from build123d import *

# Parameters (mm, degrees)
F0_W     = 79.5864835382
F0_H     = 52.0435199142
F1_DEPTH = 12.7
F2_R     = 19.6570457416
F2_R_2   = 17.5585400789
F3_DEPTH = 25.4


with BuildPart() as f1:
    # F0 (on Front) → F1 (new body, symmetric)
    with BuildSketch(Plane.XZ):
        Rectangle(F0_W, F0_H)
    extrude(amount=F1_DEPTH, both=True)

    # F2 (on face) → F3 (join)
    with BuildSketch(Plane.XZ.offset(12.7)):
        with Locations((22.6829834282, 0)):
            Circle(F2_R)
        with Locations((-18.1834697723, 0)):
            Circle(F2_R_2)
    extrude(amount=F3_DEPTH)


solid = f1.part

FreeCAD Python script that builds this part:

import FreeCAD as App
import Part
import Sketcher
from FreeCAD import Vector
Q = App.Units.Quantity

doc = App.newDocument("Part")
body = doc.addObject("PartDesign::Body", "Body")

# Sketch on XZ plane
sketch1 = body.newObject("Sketcher::SketchObject", "Sketch")
sketch1.AttachmentSupport = (doc.getObject("XZ_Plane"), [""])
sketch1.MapMode = "FlatFace"
sketch1.addGeometry(Part.LineSegment(Vector(-39.793242, 26.02176, 0), Vector(-39.793242, -26.02176, 0)), False)
sketch1.addGeometry(Part.LineSegment(Vector(-39.793242, -26.02176, 0), Vector(39.793242, -26.02176, 0)), False)
sketch1.addGeometry(Part.LineSegment(Vector(39.793242, -26.02176, 0), Vector(39.793242, 26.02176, 0)), False)
sketch1.addGeometry(Part.LineSegment(Vector(39.793242, 26.02176, 0), Vector(-39.793242, 26.02176, 0)), False)
sketch1.addConstraint(Sketcher.Constraint("Coincident", 0, 2, 1, 1))
sketch1.addConstraint(Sketcher.Constraint("Coincident", 1, 2, 2, 1))
sketch1.addConstraint(Sketcher.Constraint("Coincident", 2, 2, 3, 1))
sketch1.addConstraint(Sketcher.Constraint("Coincident", 3, 2, 0, 1))
sketch1.addConstraint(Sketcher.Constraint("Vertical", 0))
sketch1.addConstraint(Sketcher.Constraint("Horizontal", 1))
sketch1.addConstraint(Sketcher.Constraint("Vertical", 2))
sketch1.addConstraint(Sketcher.Constraint("Horizontal", 3))
sketch1.addConstraint(Sketcher.Constraint("Symmetric", 0, 2, 2, 2, -1, 1))
sketch1.addConstraint(Sketcher.Constraint("DistanceY", 0, 2, 0, 1, 52.04352))
sketch1.addConstraint(Sketcher.Constraint("DistanceX", 1, 1, 1, 2, 79.586484))
pad1 = body.newObject("PartDesign::Pad", "Pad")
pad1.Profile = sketch1
pad1.Length = Q("1 in")
pad1.Midplane = True

# Sketch on XZ plane
sketch2 = body.newObject("Sketcher::SketchObject", "Sketch001")
sketch2.AttachmentSupport = (doc.getObject("XZ_Plane"), [""])
sketch2.MapMode = "FlatFace"
sketch2.AttachmentOffset = App.Placement(Vector(0, 0, 0.5 * 25.4), App.Rotation())
sketch2.addGeometry(Part.Circle(Vector(22.682983, 0, 0), Vector(0, 0, 1), 19.657046), False)
sketch2.addGeometry(Part.Circle(Vector(-18.18347, 0, 0), Vector(0, 0, 1), 17.55854), False)
sketch2.addConstraint(Sketcher.Constraint("PointOnObject", 0, 3, -1))
sketch2.addConstraint(Sketcher.Constraint("PointOnObject", 1, 3, -1))
sketch2.addConstraint(Sketcher.Constraint("Diameter", 0, 39.314091))
sketch2.addConstraint(Sketcher.Constraint("Diameter", 1, 35.11708))
sketch2.addConstraint(Sketcher.Constraint("DistanceX", 1, 3, -1, 1, 18.18347))
sketch2.addConstraint(Sketcher.Constraint("DistanceX", -1, 1, 0, 3, 22.682983))
pad2 = body.newObject("PartDesign::Pad", "Pad001")
pad2.Profile = sketch2
pad2.Length = Q("1 in")

doc.recompute()
